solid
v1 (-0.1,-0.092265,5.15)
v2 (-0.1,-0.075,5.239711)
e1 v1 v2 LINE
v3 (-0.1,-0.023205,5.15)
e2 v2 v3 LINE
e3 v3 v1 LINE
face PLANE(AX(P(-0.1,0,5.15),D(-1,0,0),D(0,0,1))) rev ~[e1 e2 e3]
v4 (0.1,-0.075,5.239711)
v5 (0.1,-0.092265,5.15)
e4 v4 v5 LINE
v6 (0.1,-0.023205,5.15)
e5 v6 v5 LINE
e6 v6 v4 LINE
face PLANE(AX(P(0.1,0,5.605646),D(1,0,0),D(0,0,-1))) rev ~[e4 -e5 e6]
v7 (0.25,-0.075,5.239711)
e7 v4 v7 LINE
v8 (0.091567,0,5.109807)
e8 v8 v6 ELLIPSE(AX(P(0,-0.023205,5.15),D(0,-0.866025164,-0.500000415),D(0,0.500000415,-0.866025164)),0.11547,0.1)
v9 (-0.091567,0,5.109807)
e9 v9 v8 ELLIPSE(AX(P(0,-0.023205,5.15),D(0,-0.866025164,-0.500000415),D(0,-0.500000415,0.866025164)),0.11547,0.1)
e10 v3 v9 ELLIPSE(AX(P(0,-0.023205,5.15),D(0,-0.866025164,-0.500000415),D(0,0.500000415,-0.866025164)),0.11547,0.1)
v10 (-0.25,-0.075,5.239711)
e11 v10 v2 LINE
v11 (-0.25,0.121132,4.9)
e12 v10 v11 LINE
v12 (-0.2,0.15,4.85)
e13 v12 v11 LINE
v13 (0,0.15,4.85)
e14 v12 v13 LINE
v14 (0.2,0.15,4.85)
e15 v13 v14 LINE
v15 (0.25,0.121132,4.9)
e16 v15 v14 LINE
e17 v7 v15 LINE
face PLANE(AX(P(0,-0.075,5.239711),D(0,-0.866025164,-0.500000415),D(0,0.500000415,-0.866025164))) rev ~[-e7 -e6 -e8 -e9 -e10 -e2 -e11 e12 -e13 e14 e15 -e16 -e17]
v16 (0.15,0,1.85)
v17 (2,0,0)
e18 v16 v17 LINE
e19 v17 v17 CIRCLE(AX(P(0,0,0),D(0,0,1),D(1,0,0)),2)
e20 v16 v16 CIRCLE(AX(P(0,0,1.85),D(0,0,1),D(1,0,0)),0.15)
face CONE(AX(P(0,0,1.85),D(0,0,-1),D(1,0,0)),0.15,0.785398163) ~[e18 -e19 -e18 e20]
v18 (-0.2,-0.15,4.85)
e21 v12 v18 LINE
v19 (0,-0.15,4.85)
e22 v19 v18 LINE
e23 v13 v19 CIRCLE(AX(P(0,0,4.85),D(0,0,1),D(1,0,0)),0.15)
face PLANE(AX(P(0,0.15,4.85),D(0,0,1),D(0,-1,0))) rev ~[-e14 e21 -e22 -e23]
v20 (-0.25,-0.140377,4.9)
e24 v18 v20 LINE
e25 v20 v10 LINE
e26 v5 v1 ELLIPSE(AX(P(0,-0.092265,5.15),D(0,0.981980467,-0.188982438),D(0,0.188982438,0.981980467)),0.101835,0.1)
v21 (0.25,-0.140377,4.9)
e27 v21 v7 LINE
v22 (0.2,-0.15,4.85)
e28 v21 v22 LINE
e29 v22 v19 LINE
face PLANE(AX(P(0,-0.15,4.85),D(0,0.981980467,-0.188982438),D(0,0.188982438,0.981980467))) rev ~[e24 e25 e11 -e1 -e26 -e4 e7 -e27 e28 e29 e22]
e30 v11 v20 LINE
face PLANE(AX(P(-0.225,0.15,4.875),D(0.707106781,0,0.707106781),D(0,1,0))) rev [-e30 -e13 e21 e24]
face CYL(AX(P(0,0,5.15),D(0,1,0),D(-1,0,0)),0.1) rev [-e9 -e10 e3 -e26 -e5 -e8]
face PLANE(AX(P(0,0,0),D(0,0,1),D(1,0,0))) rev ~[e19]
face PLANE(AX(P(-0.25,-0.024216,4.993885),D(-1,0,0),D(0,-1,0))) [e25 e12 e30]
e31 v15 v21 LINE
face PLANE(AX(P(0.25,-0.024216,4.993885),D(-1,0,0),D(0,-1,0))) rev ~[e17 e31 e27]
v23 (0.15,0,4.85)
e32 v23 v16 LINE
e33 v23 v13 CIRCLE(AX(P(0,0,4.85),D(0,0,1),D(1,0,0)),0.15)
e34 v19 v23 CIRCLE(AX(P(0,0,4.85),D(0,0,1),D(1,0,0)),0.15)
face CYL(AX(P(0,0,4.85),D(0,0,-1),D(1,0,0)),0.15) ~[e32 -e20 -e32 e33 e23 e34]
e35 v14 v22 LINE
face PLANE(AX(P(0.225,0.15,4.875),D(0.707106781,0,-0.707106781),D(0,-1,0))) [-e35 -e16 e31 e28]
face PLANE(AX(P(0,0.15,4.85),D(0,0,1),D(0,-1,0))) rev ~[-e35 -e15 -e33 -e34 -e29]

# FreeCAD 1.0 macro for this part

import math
import FreeCAD as App
import Part
import Sketcher
Q = App.Units.Quantity


def edges_at(feature, points):
    """Names of the edges that pass closest to the given points."""
    edges = feature.Shape.Edges
    near = lambda p: min(range(len(edges)), key=lambda i: edges[i].distToShape(Part.Vertex(*p))[0])
    return sorted({f"Edge{near(p) + 1}" for p in points})


def add_polygon(sketch, points):
    """Adds a closed chain of lines whose ends are joined by coincident constraints."""
    first, n = sketch.GeometryCount, len(points)
    for a, b in zip(points, points[1:] + points[:1]):
        sketch.addGeometry(Part.LineSegment(App.Vector(*a, 0), App.Vector(*b, 0)), False)
    for i in range(n):
        sketch.addConstraint(Sketcher.Constraint("Coincident", first + i, 2, first + (i + 1) % n, 1))

doc = App.newDocument("Part")
body = doc.addObject("PartDesign::Body", "Body")

sketch1 = body.newObject("Sketcher::SketchObject", "Sketch")
sketch1.AttachmentSupport = (doc.getObject("XZ_Plane"), [""])
sketch1.MapMode = "FlatFace"
add_polygon(sketch1, [(0.15, 4.85), (0, 4.85), (0, 0), (2, 0), (0.15, 1.85)])
sketch1.addConstraint([
    Sketcher.Constraint("Horizontal", 0),
    Sketcher.Constraint("Vertical", 1),
    Sketcher.Constraint("Horizontal", 2),
    Sketcher.Constraint("Vertical", 4),
    Sketcher.Constraint("Coincident", 1, 2, -1, 1),
    Sketcher.Constraint("DistanceX", 2, 1, 2, 2, 2.0),
    Sketcher.Constraint("DistanceY", 4, 1, 4, 2, 3.0),
    Sketcher.Constraint("Angle", 3, Q("135 deg")),
    Sketcher.Constraint("DistanceX", 0, 2, 0, 1, 0.15),
])
revolution = body.newObject("PartDesign::Revolution", "Revolution")
revolution.Profile = sketch1
revolution.ReferenceAxis = (sketch1, ["V_Axis"])
revolution.Angle = 360

sketch2 = body.newObject("Sketcher::SketchObject", "Sketch001")
sketch2.AttachmentSupport = (doc.getObject("YZ_Plane"), [""])
sketch2.MapMode = "FlatFace"
add_polygon(sketch2, [(-0.15, 4.85), (0.15, 4.85), (-0.075, 5.239711)])
sketch2.addConstraint([
    Sketcher.Constraint("Horizontal", 0),
    Sketcher.Constraint("DistanceX", 0, 1, 0, 2, 0.3),
    Sketcher.Constraint("Distance", 1, 0.45),
    Sketcher.Constraint("DistanceX", -1, 1, 0, 2, 0.15),
    Sketcher.Constraint("DistanceY", -1, 1, 0, 2, 4.85),
    Sketcher.Constraint("DistanceX", 1, 2, -1, 1, 0.075),
])
pad1 = body.newObject("PartDesign::Pad", "Pad")
pad1.Profile = sketch2
pad1.Length = 0.5
pad1.Midplane = True

sketch3 = body.newObject("Sketcher::SketchObject", "Sketch002")
sketch3.AttachmentSupport = (doc.getObject("XZ_Plane"), [""])
sketch3.MapMode = "FlatFace"
sketch3.addGeometry([
    Part.ArcOfCircle(Part.Circle(App.Vector(0, 5.15, 0), App.Vector(0, 0, 1), 0.1), math.radians(180), math.radians(360)),
    Part.LineSegment(App.Vector(0.1, 5.15, 0), App.Vector(0.1, 5.605646, 0)),
    Part.LineSegment(App.Vector(0.1, 5.605646, 0), App.Vector(-0.1, 5.605646, 0)),
    Part.LineSegment(App.Vector(-0.1, 5.605646, 0), App.Vector(-0.1, 5.15, 0)),
], False)
sketch3.addConstraint([
    Sketcher.Constraint("Tangent", 0, 2, 1, 1),
    Sketcher.Constraint("Coincident", 1, 2, 2, 1),
    Sketcher.Constraint("Coincident", 2, 2, 3, 1),
    Sketcher.Constraint("Tangent", 3, 2, 0, 1),
    Sketcher.Constraint("Vertical", 1),
    Sketcher.Constraint("Horizontal", 2),
    Sketcher.Constraint("Vertical", 3),
    Sketcher.Constraint("PointOnObject", 0, 3, -2),
    Sketcher.Constraint("Radius", 0, 0.1),
    Sketcher.Constraint("DistanceY", -1, 1, 0, 3, 5.15),
    Sketcher.Constraint("DistanceY", 1, 1, 1, 2, 0.455646),
])
pocket1 = body.newObject("PartDesign::Pocket", "Pocket")
pocket1.Profile = sketch3
pocket1.Type = "ThroughAll"
pocket1.Midplane = True
doc.recompute()

chamfer = body.newObject("PartDesign::Chamfer", "Chamfer")
chamfer.Base = (pocket1, edges_at(pocket1, [(0.25, 0, 4.85)]))
chamfer.Size = 0.05
doc.recompute()

chamfer2 = body.newObject("PartDesign::Chamfer", "Chamfer001")
chamfer2.Base = (chamfer, edges_at(chamfer, [(-0.25, 0, 4.85)]))
chamfer2.Size = 0.05

doc.recompute()
